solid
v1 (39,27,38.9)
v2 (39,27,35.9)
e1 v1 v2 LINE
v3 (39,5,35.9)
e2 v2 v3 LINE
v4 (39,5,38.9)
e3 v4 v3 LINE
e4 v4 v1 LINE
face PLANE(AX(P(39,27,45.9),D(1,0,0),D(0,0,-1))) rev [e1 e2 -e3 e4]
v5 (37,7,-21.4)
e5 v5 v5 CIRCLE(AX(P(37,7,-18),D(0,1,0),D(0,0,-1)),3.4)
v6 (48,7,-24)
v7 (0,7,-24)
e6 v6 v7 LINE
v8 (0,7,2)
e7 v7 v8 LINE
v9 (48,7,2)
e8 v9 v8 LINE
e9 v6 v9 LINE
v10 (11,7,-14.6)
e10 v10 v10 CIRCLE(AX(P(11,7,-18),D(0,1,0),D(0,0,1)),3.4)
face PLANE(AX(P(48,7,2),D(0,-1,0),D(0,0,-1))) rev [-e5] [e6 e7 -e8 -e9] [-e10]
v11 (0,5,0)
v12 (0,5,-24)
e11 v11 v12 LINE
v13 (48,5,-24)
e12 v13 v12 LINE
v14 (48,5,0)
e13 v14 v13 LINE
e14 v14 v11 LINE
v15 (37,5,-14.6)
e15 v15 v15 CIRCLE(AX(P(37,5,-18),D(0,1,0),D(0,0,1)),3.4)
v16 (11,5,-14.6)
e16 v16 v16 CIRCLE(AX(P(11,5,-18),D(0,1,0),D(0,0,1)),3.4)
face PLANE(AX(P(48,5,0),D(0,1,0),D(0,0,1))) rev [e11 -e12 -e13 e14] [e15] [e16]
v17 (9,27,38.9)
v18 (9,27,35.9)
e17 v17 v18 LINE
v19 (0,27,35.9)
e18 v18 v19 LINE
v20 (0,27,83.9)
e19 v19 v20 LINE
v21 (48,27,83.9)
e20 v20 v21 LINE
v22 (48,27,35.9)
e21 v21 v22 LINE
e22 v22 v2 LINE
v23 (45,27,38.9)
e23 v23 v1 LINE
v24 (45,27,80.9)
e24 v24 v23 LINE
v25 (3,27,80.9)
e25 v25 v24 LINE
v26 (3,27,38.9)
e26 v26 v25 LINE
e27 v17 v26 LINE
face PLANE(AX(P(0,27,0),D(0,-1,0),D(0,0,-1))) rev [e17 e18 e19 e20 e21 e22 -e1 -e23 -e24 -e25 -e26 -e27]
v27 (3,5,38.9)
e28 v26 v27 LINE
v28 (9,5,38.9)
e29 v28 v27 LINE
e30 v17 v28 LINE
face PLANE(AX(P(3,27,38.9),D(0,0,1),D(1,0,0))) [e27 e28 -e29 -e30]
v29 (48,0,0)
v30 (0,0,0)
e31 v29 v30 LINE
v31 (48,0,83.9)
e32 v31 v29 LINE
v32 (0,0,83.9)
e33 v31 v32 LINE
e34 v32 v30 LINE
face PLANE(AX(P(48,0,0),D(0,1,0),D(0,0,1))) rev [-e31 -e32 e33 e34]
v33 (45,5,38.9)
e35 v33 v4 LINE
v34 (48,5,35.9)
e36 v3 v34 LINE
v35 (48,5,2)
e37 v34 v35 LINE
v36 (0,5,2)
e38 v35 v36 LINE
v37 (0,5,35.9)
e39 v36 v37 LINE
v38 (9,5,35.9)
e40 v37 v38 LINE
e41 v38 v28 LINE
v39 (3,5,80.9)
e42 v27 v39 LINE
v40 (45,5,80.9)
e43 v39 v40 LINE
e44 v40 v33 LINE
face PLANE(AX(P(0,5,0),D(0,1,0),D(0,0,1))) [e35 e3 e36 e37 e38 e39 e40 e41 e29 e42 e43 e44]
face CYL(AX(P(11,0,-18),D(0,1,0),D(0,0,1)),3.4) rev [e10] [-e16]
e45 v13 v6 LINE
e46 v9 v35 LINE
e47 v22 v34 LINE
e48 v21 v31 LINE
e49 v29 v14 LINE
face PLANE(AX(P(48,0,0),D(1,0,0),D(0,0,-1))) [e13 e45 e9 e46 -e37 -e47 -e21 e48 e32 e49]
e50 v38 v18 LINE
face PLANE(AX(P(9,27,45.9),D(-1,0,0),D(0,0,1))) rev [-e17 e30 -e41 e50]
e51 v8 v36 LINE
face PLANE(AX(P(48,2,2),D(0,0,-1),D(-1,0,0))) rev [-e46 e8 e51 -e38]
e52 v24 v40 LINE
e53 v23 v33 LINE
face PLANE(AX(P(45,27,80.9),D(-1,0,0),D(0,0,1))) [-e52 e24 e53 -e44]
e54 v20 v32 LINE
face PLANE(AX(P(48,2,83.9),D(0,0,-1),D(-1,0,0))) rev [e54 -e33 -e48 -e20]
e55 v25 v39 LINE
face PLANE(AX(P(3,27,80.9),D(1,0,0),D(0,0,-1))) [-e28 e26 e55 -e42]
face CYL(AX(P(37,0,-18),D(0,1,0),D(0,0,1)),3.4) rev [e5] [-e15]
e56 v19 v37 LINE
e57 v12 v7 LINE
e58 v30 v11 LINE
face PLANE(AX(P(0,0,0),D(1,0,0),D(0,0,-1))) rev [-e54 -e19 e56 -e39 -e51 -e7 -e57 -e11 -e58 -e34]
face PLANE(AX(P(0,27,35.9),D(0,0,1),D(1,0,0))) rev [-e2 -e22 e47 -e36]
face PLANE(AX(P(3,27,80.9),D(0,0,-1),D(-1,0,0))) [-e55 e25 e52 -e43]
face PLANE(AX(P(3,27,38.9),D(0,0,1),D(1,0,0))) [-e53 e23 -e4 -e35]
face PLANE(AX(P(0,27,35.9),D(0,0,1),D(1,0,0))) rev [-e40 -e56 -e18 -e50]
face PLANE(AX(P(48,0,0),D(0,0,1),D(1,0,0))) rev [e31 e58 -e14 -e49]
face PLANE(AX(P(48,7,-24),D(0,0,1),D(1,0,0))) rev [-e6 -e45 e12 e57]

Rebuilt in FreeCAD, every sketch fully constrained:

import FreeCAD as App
import Part
import Sketcher

V = App.Vector

doc = App.newDocument("Part")
body = doc.addObject("PartDesign::Body", "Body")

# Sketch on YZ plane
sketch1 = body.newObject("Sketcher::SketchObject", "Sketch")
sketch1.AttachmentSupport = (doc.getObject("YZ_Plane"), [""])
sketch1.MapMode = "FlatFace"
sketch1.addGeometry(Part.LineSegment(V(0, 0, 0), V(5, 0, 0)), False)
sketch1.addGeometry(Part.LineSegment(V(5, 0, 0), V(5, -24, 0)), False)
sketch1.addGeometry(Part.LineSegment(V(5, -24, 0), V(7, -24, 0)), False)
sketch1.addGeometry(Part.LineSegment(V(7, -24, 0), V(7, 2, 0)), False)
sketch1.addGeometry(Part.LineSegment(V(7, 2, 0), V(2, 2, 0)), False)
sketch1.addGeometry(Part.LineSegment(V(2, 2, 0), V(2, 83.9, 0)), False)
sketch1.addGeometry(Part.LineSegment(V(2, 83.9, 0), V(0, 83.9, 0)), False)
sketch1.addGeometry(Part.LineSegment(V(0, 83.9, 0), V(0, 0, 0)), False)
sketch1.addConstraint(Sketcher.Constraint("Coincident", 0, 2, 1, 1))
sketch1.addConstraint(Sketcher.Constraint("Coincident", 1, 2, 2, 1))
sketch1.addConstraint(Sketcher.Constraint("Coincident", 2, 2, 3, 1))
sketch1.addConstraint(Sketcher.Constraint("Coincident", 3, 2, 4, 1))
sketch1.addConstraint(Sketcher.Constraint("Coincident", 4, 2, 5, 1))
sketch1.addConstraint(Sketcher.Constraint("Coincident", 5, 2, 6, 1))
sketch1.addConstraint(Sketcher.Constraint("Coincident", 6, 2, 7, 1))
sketch1.addConstraint(Sketcher.Constraint("Coincident", 7, 2, 0, 1))
sketch1.addConstraint(Sketcher.Constraint("Horizontal", 0))
sketch1.addConstraint(Sketcher.Constraint("Vertical", 1))
sketch1.addConstraint(Sketcher.Constraint("Horizontal", 2))
sketch1.addConstraint(Sketcher.Constraint("Vertical", 3))
sketch1.addConstraint(Sketcher.Constraint("Horizontal", 4))
sketch1.addConstraint(Sketcher.Constraint("Vertical", 5))
sketch1.addConstraint(Sketcher.Constraint("Horizontal", 6))
sketch1.addConstraint(Sketcher.Constraint("Vertical", 7))
sketch1.addConstraint(Sketcher.Constraint("Coincident", 7, 2, -1, 1))
sketch1.addConstraint(Sketcher.Constraint("Equal", 0, 4))
sketch1.addConstraint(Sketcher.Constraint("DistanceX", 0, 1, 0, 2, 5.0))
sketch1.addConstraint(Sketcher.Constraint("DistanceX", 2, 1, 2, 2, 2.0))
sketch1.addConstraint(Sketcher.Constraint("DistanceY", 1, 2, 1, 1, 24.0))
sketch1.addConstraint(Sketcher.Constraint("DistanceY", 3, 1, 3, 2, 26.0))
sketch1.addConstraint(Sketcher.Constraint("DistanceY", 5, 1, 5, 2, 81.9))
pad1 = body.newObject("PartDesign::Pad", "Pad")
pad1.Profile = sketch1
pad1.Length = 48

# Sketch on XZ plane
sketch2 = body.newObject("Sketcher::SketchObject", "Sketch001")
sketch2.AttachmentSupport = (doc.getObject("XZ_Plane"), [""])
sketch2.MapMode = "FlatFace"
sketch2.AttachmentOffset = App.Placement(V(0, 0, -2), App.Rotation())
sketch2.addGeometry(Part.LineSegment(V(0, 35.9, 0), V(0, 83.9, 0)), False)
sketch2.addGeometry(Part.LineSegment(V(0, 83.9, 0), V(48, 83.9, 0)), False)
sketch2.addGeometry(Part.LineSegment(V(48, 83.9, 0), V(48, 35.9, 0)), False)
sketch2.addGeometry(Part.LineSegment(V(48, 35.9, 0), V(0, 35.9, 0)), False)
sketch2.addGeometry(Part.LineSegment(V(45, 80.9, 0), V(3, 80.9, 0)), False)
sketch2.addGeometry(Part.LineSegment(V(3, 80.9, 0), V(3, 38.9, 0)), False)
sketch2.addGeometry(Part.LineSegment(V(3, 38.9, 0), V(45, 38.9, 0)), False)
sketch2.addGeometry(Part.LineSegment(V(45, 38.9, 0), V(45, 80.9, 0)), False)
sketch2.addConstraint(Sketcher.Constraint("Coincident", 0, 2, 1, 1))
sketch2.addConstraint(Sketcher.Constraint("Coincident", 1, 2, 2, 1))
sketch2.addConstraint(Sketcher.Constraint("Coincident", 2, 2, 3, 1))
sketch2.addConstraint(Sketcher.Constraint("Coincident", 3, 2, 0, 1))
sketch2.addConstraint(Sketcher.Constraint("Coincident", 4, 2, 5, 1))
sketch2.addConstraint(Sketcher.Constraint("Coincident", 5, 2, 6, 1))
sketch2.addConstraint(Sketcher.Constraint("Coincident", 6, 2, 7, 1))
sketch2.addConstraint(Sketcher.Constraint("Coincident", 7, 2, 4, 1))
sketch2.addConstraint(Sketcher.Constraint("Vertical", 0))
sketch2.addConstraint(Sketcher.Constraint("Horizontal", 1))
sketch2.addConstraint(Sketcher.Constraint("Vertical", 2))
sketch2.addConstraint(Sketcher.Constraint("Horizontal", 3))
sketch2.addConstraint(Sketcher.Constraint("Horizontal", 4))
sketch2.addConstraint(Sketcher.Constraint("Vertical", 5))
sketch2.addConstraint(Sketcher.Constraint("Horizontal", 6))
sketch2.addConstraint(Sketcher.Constraint("Vertical", 7))
sketch2.addConstraint(Sketcher.Constraint("PointOnObject", 0, 2, -2))
sketch2.addConstraint(Sketcher.Constraint("Equal", 3, 0))
sketch2.addConstraint(Sketcher.Constraint("Equal", 6, 5))
sketch2.addConstraint(Sketcher.Constraint("DistanceX", 1, 1, 1, 2, 48.0))
sketch2.addConstraint(Sketcher.Constraint("DistanceX", 4, 2, 4, 1, 42.0))
sketch2.addConstraint(Sketcher.Constraint("DistanceX", -1, 1, 4, 2, 3.0))
sketch2.addConstraint(Sketcher.Constraint("DistanceY", 4, 2, 0, 2, 3.0))
sketch2.addConstraint(Sketcher.Constraint("DistanceY", -1, 1, 0, 2, 83.9))
pad2 = body.newObject("PartDesign::Pad", "Pad001")
pad2.Profile = sketch2
pad2.Length = 25
pad2.Reversed = True

# Sketch on XZ plane
sketch3 = body.newObject("Sketcher::SketchObject", "Sketch002")
sketch3.AttachmentSupport = (doc.getObject("XZ_Plane"), [""])
sketch3.MapMode = "FlatFace"
sketch3.AttachmentOffset = App.Placement(V(0, 0, -2), App.Rotation())
sketch3.addGeometry(Part.LineSegment(V(3, 38.9, 0), V(3, 80.9, 0)), False)
sketch3.addGeometry(Part.LineSegment(V(3, 80.9, 0), V(45, 80.9, 0)), False)
sketch3.addGeometry(Part.LineSegment(V(45, 80.9, 0), V(45, 38.9, 0)), False)
sketch3.addGeometry(Part.LineSegment(V(45, 38.9, 0), V(3, 38.9, 0)), False)
sketch3.addConstraint(Sketcher.Constraint("Coincident", 0, 2, 1, 1))
sketch3.addConstraint(Sketcher.Constraint("Coincident", 1, 2, 2, 1))
sketch3.addConstraint(Sketcher.Constraint("Coincident", 2, 2, 3, 1))
sketch3.addConstraint(Sketcher.Constraint("Coincident", 3, 2, 0, 1))
sketch3.addConstraint(Sketcher.Constraint("Vertical", 0))
sketch3.addConstraint(Sketcher.Constraint("Horizontal", 1))
sketch3.addConstraint(Sketcher.Constraint("Vertical", 2))
sketch3.addConstraint(Sketcher.Constraint("Horizontal", 3))
sketch3.addConstraint(Sketcher.Constraint("Equal", 3, 0))
sketch3.addConstraint(Sketcher.Constraint("DistanceX", 1, 1, 1, 2, 42.0))
sketch3.addConstraint(Sketcher.Constraint("DistanceX", -1, 1, 0, 2, 3.0))
sketch3.addConstraint(Sketcher.Constraint("DistanceY", -1, 1, 0, 2, 80.9))
pad3 = body.newObject("PartDesign::Pad", "Pad002")
pad3.Profile = sketch3
pad3.Length = 3
pad3.Reversed = True

# Sketch on XZ plane
sketch4 = body.newObject("Sketcher::SketchObject", "Sketch003")
sketch4.AttachmentSupport = (doc.getObject("XZ_Plane"), [""])
sketch4.MapMode = "FlatFace"
sketch4.AttachmentOffset = App.Placement(V(0, 0, -7), App.Rotation())
sketch4.addGeometry(Part.Circle(V(11, -18, 0), V(0, 0, 1), 3.4), False)
sketch4.addGeometry(Part.Circle(V(37, -18, 0), V(0, 0, 1), 3.4), False)
sketch4.addConstraint(Sketcher.Constraint("Equal", 0, 1))
sketch4.addConstraint(Sketcher.Constraint("Horizontal", 0, 3, 1, 3))
sketch4.addConstraint(Sketcher.Constraint("Diameter", 0, 6.8))
sketch4.addConstraint(Sketcher.Constraint("DistanceX", -1, 1, 0, 3, 11.0))
sketch4.addConstraint(Sketcher.Constraint("DistanceY", 0, 3, -1, 1, 18.0))
sketch4.addConstraint(Sketcher.Constraint("DistanceX", -1, 1, 1, 3, 37.0))
pocket1 = body.newObject("PartDesign::Pocket", "Pocket")
pocket1.Profile = sketch4
pocket1.Type = "ThroughAll"
pocket1.Reversed = True

# Sketch on XY plane
sketch5 = body.newObject("Sketcher::SketchObject", "Sketch004")
sketch5.AttachmentSupport = (doc.getObject("XY_Plane"), [""])
sketch5.MapMode = "FlatFace"
sketch5.AttachmentOffset = App.Placement(V(0, 0, 35.9), App.Rotation())
sketch5.addGeometry(Part.LineSegment(V(39, 27, 0), V(39, 2, 0)), False)
sketch5.addGeometry(Part.LineSegment(V(39, 2, 0), V(9, 2, 0)), False)
sketch5.addGeometry(Part.LineSegment(V(9, 2, 0), V(9, 27, 0)), False)
sketch5.addGeometry(Part.LineSegment(V(9, 27, 0), V(39, 27, 0)), False)
sketch5.addConstraint(Sketcher.Constraint("Coincident", 0, 2, 1, 1))
sketch5.addConstraint(Sketcher.Constraint("Coincident", 1, 2, 2, 1))
sketch5.addConstraint(Sketcher.Constraint("Coincident", 2, 2, 3, 1))
sketch5.addConstraint(Sketcher.Constraint("Coincident", 3, 2, 0, 1))
sketch5.addConstraint(Sketcher.Constraint("Vertical", 0))
sketch5.addConstraint(Sketcher.Constraint("Horizontal", 1))
sketch5.addConstraint(Sketcher.Constraint("Vertical", 2))
sketch5.addConstraint(Sketcher.Constraint("Horizontal", 3))
sketch5.addConstraint(Sketcher.Constraint("DistanceX", 1, 2, 1, 1, 30.0))
sketch5.addConstraint(Sketcher.Constraint("DistanceY", 0, 2, 0, 1, 25.0))
sketch5.addConstraint(Sketcher.Constraint("DistanceX", -1, 1, 0, 2, 39.0))
sketch5.addConstraint(Sketcher.Constraint("DistanceY", -1, 1, 0, 2, 2.0))
pocket2 = body.newObject("PartDesign::Pocket", "Pocket001")
pocket2.Profile = sketch5
pocket2.Length = 10
pocket2.Reversed = True

# Sketch on XZ plane
sketch6 = body.newObject("Sketcher::SketchObject", "Sketch005")
sketch6.AttachmentSupport = (doc.getObject("XZ_Plane"), [""])
sketch6.MapMode = "FlatFace"
sketch6.AttachmentOffset = App.Placement(V(0, 0, -2), App.Rotation())
sketch6.addGeometry(Part.LineSegment(V(0, 2, 0), V(0, 35.9, 0)), False)
sketch6.addGeometry(Part.LineSegment(V(0, 35.9, 0), V(9, 35.9, 0)), False)
sketch6.addGeometry(Part.LineSegment(V(9, 35.9, 0), V(9, 45.9, 0)), False)
sketch6.addGeometry(Part.LineSegment(V(9, 45.9, 0), V(39, 45.9, 0)), False)
sketch6.addGeometry(Part.LineSegment(V(39, 45.9, 0), V(39, 35.9, 0)), False)
sketch6.addGeometry(Part.LineSegment(V(39, 35.9, 0), V(48, 35.9, 0)), False)
sketch6.addGeometry(Part.LineSegment(V(48, 35.9, 0), V(48, 2, 0)), False)
sketch6.addGeometry(Part.LineSegment(V(48, 2, 0), V(0, 2, 0)), False)
sketch6.addConstraint(Sketcher.Constraint("Coincident", 0, 2, 1, 1))
sketch6.addConstraint(Sketcher.Constraint("Coincident", 1, 2, 2, 1))
sketch6.addConstraint(Sketcher.Constraint("Coincident", 2, 2, 3, 1))
sketch6.addConstraint(Sketcher.Constraint("Coincident", 3, 2, 4, 1))
sketch6.addConstraint(Sketcher.Constraint("Coincident", 4, 2, 5, 1))
sketch6.addConstraint(Sketcher.Constraint("Coincident", 5, 2, 6, 1))
sketch6.addConstraint(Sketcher.Constraint("Coincident", 6, 2, 7, 1))
sketch6.addConstraint(Sketcher.Constraint("Coincident", 7, 2, 0, 1))
sketch6.addConstraint(Sketcher.Constraint("Vertical", 0))
sketch6.addConstraint(Sketcher.Constraint("Horizontal", 1))
sketch6.addConstraint(Sketcher.Constraint("Vertical", 2))
sketch6.addConstraint(Sketcher.Constraint("Horizontal", 3))
sketch6.addConstraint(Sketcher.Constraint("Vertical", 4))
sketch6.addConstraint(Sketcher.Constraint("Horizontal", 5))
sketch6.addConstraint(Sketcher.Constraint("Vertical", 6))
sketch6.addConstraint(Sketcher.Constraint("Horizontal", 7))
sketch6.addConstraint(Sketcher.Constraint("PointOnObject", 0, 2, -2))
sketch6.addConstraint(Sketcher.Constraint("Horizontal", 1, 2, 4, 2))
sketch6.addConstraint(Sketcher.Constraint("Equal", 1, 5))
sketch6.addConstraint(Sketcher.Constraint("DistanceX", 1, 1, 1, 2, 9.0))
sketch6.addConstraint(Sketcher.Constraint("DistanceX", 3, 1, 3, 2, 30.0))
sketch6.addConstraint(Sketcher.Constraint("DistanceY", 2, 1, 2, 2, 10.0))
sketch6.addConstraint(Sketcher.Constraint("DistanceY", 0, 1, 0, 2, 33.9))
sketch6.addConstraint(Sketcher.Constraint("DistanceY", -1, 1, 6, 2, 2.0))
pad4 = body.newObject("PartDesign::Pad", "Pad003")
pad4.Profile = sketch6
pad4.Length = 3
pad4.Reversed = True

doc.recompute()
